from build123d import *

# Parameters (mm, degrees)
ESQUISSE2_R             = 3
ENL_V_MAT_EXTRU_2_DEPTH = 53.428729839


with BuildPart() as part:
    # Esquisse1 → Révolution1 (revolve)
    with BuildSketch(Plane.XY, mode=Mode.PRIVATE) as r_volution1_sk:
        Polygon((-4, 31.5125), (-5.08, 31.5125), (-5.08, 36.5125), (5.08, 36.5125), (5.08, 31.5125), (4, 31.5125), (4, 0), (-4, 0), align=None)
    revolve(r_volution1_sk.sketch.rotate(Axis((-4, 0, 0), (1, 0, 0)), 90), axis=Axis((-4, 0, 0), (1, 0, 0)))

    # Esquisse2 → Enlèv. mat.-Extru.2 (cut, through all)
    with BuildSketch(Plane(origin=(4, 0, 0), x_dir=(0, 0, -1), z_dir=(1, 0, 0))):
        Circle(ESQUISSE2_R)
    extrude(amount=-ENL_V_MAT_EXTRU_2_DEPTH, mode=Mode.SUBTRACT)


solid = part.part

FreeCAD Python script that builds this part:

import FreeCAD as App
import Part
import Sketcher

V = App.Vector
Q = App.Units.Quantity

doc = App.newDocument("Part")
body = doc.addObject("PartDesign::Body", "Body")

# Sketch on XY plane
sketch1 = body.newObject("Sketcher::SketchObject", "Sketch")
sketch1.AttachmentSupport = (doc.getObject("XY_Plane"), [""])
sketch1.MapMode = "FlatFace"
sketch1.addGeometry([
    Part.LineSegment(V(-5.1, 31.5, 0), V(-4, 31.5, 0)),  # 0
    Part.LineSegment(V(-4, 31.5, 0), V(-4, 0, 0)),  # 1
    Part.LineSegment(V(-4, 0, 0), V(4, 0, 0)),  # 2
    Part.LineSegment(V(4, 0, 0), V(4, 31.5, 0)),  # 3
    Part.LineSegment(V(4, 31.5, 0), V(5.1, 31.5, 0)),  # 4
    Part.LineSegment(V(5.1, 31.5, 0), V(5.1, 36.5, 0)),  # 5
    Part.LineSegment(V(5.1, 36.5, 0), V(-5.1, 36.5, 0)),  # 6
    Part.LineSegment(V(-5.1, 36.5, 0), V(-5.1, 31.5, 0)),  # 7
], False)
sketch1.addConstraint([
    Sketcher.Constraint("Coincident", 0, 2, 1, 1),
    Sketcher.Constraint("Coincident", 1, 2, 2, 1),
    Sketcher.Constraint("Coincident", 2, 2, 3, 1),
    Sketcher.Constraint("Coincident", 3, 2, 4, 1),
    Sketcher.Constraint("Coincident", 4, 2, 5, 1),
    Sketcher.Constraint("Coincident", 5, 2, 6, 1),
    Sketcher.Constraint("Coincident", 6, 2, 7, 1),
    Sketcher.Constraint("Coincident", 7, 2, 0, 1),
    Sketcher.Constraint("Horizontal", 0),
    Sketcher.Constraint("Vertical", 1),
    Sketcher.Constraint("Horizontal", 2),
    Sketcher.Constraint("Vertical", 3),
    Sketcher.Constraint("Horizontal", 4),
    Sketcher.Constraint("Vertical", 5),
    Sketcher.Constraint("Horizontal", 6),
    Sketcher.Constraint("Vertical", 7),
    Sketcher.Constraint("Symmetric", 1, 2, 2, 2, -1, 1),
    Sketcher.Constraint("Symmetric", 4, 2, 7, 2, -2),
    Sketcher.Constraint("DistanceX", 2, 1, 2, 2, Q("8 mm")),
    Sketcher.Constraint("DistanceY", 5, 1, 5, 2, Q("5 mm")),
    Sketcher.Constraint("DistanceX", 0, 1, 0, 2, Q("1.08 mm")),
    Sketcher.Constraint("DistanceY", 1, 2, 1, 1, Q("31.5125 mm")),
])
revolution = body.newObject("PartDesign::Revolution", "Revolution")
revolution.Profile = sketch1
revolution.ReferenceAxis = (sketch1, ["H_Axis"])
revolution.Angle = 360

# Sketch on YZ plane
sketch2 = body.newObject("Sketcher::SketchObject", "Sketch001")
sketch2.AttachmentSupport = (doc.getObject("YZ_Plane"), [""])
sketch2.MapMode = "FlatFace"
sketch2.AttachmentOffset = App.Placement(V(0, 0, 4), App.Rotation())
sketch2.addGeometry(Part.Circle(V(0, 0, 0), V(0, 0, 1), 3), False)
sketch2.addConstraint([
    Sketcher.Constraint("Coincident", 0, 3, -1, 1),
    Sketcher.Constraint("Diameter", 0, Q("6 mm")),
])
pocket1 = body.newObject("PartDesign::Pocket", "Pocket")
pocket1.Profile = sketch2
pocket1.Type = "ThroughAll"

doc.recompute()
